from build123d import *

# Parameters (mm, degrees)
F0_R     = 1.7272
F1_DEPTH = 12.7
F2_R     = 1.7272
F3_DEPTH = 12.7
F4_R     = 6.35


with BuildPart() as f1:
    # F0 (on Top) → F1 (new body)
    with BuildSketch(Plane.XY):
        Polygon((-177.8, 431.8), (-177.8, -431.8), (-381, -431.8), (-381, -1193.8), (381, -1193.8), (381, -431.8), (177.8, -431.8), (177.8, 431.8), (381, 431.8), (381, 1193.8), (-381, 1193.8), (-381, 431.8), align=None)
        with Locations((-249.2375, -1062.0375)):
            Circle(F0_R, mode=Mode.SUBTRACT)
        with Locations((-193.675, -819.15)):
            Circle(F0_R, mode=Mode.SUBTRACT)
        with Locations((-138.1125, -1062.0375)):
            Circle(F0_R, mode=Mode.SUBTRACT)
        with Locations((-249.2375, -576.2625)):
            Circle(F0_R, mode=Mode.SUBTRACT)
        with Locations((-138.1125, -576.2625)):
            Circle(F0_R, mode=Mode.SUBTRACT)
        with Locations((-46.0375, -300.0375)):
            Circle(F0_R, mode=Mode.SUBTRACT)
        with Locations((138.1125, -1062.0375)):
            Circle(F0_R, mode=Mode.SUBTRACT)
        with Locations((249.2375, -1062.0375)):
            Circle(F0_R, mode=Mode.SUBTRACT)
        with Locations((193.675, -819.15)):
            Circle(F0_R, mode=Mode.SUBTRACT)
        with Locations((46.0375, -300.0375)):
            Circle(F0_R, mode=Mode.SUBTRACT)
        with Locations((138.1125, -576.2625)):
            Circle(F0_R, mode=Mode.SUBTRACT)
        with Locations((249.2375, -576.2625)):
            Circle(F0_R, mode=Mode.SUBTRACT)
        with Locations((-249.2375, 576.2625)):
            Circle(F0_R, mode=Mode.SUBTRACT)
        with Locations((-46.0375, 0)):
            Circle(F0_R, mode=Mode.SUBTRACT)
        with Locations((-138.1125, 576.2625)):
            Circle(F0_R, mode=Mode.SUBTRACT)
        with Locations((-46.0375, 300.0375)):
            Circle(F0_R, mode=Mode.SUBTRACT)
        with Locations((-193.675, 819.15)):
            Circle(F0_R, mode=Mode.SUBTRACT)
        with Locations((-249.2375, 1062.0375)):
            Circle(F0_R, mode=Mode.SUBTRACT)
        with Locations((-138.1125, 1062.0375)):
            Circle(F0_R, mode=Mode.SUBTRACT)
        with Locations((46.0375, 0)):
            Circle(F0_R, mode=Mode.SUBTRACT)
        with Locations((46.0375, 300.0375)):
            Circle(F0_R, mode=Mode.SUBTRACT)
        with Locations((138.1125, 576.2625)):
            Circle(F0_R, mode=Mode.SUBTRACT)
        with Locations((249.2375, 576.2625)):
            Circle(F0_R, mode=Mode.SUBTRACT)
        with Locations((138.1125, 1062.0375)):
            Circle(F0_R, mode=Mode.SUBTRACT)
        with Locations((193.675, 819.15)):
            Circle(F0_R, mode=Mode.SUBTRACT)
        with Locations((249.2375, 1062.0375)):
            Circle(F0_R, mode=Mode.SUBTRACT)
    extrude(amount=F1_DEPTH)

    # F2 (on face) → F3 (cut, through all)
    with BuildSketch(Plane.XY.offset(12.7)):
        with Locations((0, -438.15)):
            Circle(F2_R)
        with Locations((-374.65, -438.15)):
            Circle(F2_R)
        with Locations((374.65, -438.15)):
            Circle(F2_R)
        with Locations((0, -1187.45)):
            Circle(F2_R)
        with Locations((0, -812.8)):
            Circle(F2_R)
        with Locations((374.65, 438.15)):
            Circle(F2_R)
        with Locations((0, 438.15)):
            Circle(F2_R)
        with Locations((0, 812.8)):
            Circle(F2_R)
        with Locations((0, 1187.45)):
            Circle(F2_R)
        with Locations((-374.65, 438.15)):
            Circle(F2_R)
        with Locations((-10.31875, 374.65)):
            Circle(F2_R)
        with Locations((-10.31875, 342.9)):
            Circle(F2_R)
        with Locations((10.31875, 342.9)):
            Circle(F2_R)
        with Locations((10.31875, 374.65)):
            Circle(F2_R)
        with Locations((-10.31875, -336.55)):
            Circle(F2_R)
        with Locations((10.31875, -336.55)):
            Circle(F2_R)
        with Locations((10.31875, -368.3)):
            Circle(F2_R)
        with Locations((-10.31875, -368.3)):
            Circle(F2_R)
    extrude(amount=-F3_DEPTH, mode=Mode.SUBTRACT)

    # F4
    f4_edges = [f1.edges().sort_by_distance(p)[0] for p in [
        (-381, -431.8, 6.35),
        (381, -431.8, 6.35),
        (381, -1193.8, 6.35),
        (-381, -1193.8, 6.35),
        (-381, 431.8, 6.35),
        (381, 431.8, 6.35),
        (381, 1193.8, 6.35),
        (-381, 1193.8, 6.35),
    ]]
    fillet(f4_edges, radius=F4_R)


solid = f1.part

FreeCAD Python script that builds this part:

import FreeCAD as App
import Part
import Sketcher
from FreeCAD import Vector
Q = App.Units.Quantity


def edges_at(feature, points):
    """Names of the edges that pass closest to the given points."""
    edges = feature.Shape.Edges
    near = lambda p: min(range(len(edges)), key=lambda i: edges[i].distToShape(Part.Vertex(*p))[0])
    return sorted({f"Edge{near(p) + 1}" for p in points})


def add_polygon(sketch, points):
    """Adds a closed chain of lines whose ends are joined by coincident constraints."""
    first, n = sketch.GeometryCount, len(points)
    for a, b in zip(points, points[1:] + points[:1]):
        sketch.addGeometry(Part.LineSegment(App.Vector(*a, 0), App.Vector(*b, 0)), False)
    for i in range(n):
        sketch.addConstraint(Sketcher.Constraint("Coincident", first + i, 2, first + (i + 1) % n, 1))

doc = App.newDocument("Part")
body = doc.addObject("PartDesign::Body", "Body")

# Sketch on XY plane
sketch1 = body.newObject("Sketcher::SketchObject", "Sketch")
sketch1.AttachmentSupport = (doc.getObject("XY_Plane"), [""])
sketch1.MapMode = "FlatFace"
add_polygon(sketch1, [(-177.8, 431.8), (-177.8, -431.8), (-381, -431.8), (-381, -1193.8), (381, -1193.8), (381, -431.8), (177.8, -431.8), (177.8, 431.8), (381, 431.8), (381, 1193.8), (-381, 1193.8), (-381, 431.8)])  # lines 0-11
sketch1.addGeometry(Part.Circle(Vector(-249.2375, -1062.0375, 0), Vector(0, 0, 1), 1.7272), False)  # 12
sketch1.addGeometry(Part.Circle(Vector(-193.675, -819.15, 0), Vector(0, 0, 1), 1.7272), False)  # 13
sketch1.addGeometry(Part.Circle(Vector(-138.1125, -1062.0375, 0), Vector(0, 0, 1), 1.7272), False)  # 14
sketch1.addGeometry(Part.Circle(Vector(-249.2375, -576.2625, 0), Vector(0, 0, 1), 1.7272), False)  # 15
sketch1.addGeometry(Part.Circle(Vector(-138.1125, -576.2625, 0), Vector(0, 0, 1), 1.7272), False)  # 16
sketch1.addGeometry(Part.Circle(Vector(-46.0375, -300.0375, 0), Vector(0, 0, 1), 1.7272), False)  # 17
sketch1.addGeometry(Part.Circle(Vector(138.1125, -1062.0375, 0), Vector(0, 0, 1), 1.7272), False)  # 18
sketch1.addGeometry(Part.Circle(Vector(249.2375, -1062.0375, 0), Vector(0, 0, 1), 1.7272), False)  # 19
sketch1.addGeometry(Part.Circle(Vector(193.675, -819.15, 0), Vector(0, 0, 1), 1.7272), False)  # 20
sketch1.addGeometry(Part.Circle(Vector(138.1125, -576.2625, 0), Vector(0, 0, 1), 1.7272), False)  # 21
sketch1.addGeometry(Part.Circle(Vector(249.2375, -576.2625, 0), Vector(0, 0, 1), 1.7272), False)  # 22
sketch1.addGeometry(Part.Circle(Vector(46.0375, -300.0375, 0), Vector(0, 0, 1), 1.7272), False)  # 23
sketch1.addGeometry(Part.Circle(Vector(-46.0375, 0, 0), Vector(0, 0, 1), 1.7272), False)  # 24
sketch1.addGeometry(Part.Circle(Vector(-46.0375, 300.0375, 0), Vector(0, 0, 1), 1.7272), False)  # 25
sketch1.addGeometry(Part.Circle(Vector(-249.2375, 576.2625, 0), Vector(0, 0, 1), 1.7272), False)  # 26
sketch1.addGeometry(Part.Circle(Vector(-138.1125, 576.2625, 0), Vector(0, 0, 1), 1.7272), False)  # 27
sketch1.addGeometry(Part.Circle(Vector(-193.675, 819.15, 0), Vector(0, 0, 1), 1.7272), False)  # 28
sketch1.addGeometry(Part.Circle(Vector(-249.2375, 1062.0375, 0), Vector(0, 0, 1), 1.7272), False)  # 29
sketch1.addGeometry(Part.Circle(Vector(-138.1125, 1062.0375, 0), Vector(0, 0, 1), 1.7272), False)  # 30
sketch1.addGeometry(Part.Circle(Vector(46.0375, 0, 0), Vector(0, 0, 1), 1.7272), False)  # 31
sketch1.addGeometry(Part.Circle(Vector(46.0375, 300.0375, 0), Vector(0, 0, 1), 1.7272), False)  # 32
sketch1.addGeometry(Part.Circle(Vector(138.1125, 576.2625, 0), Vector(0, 0, 1), 1.7272), False)  # 33
sketch1.addGeometry(Part.Circle(Vector(249.2375, 576.2625, 0), Vector(0, 0, 1), 1.7272), False)  # 34
sketch1.addGeometry(Part.Circle(Vector(138.1125, 1062.0375, 0), Vector(0, 0, 1), 1.7272), False)  # 35
sketch1.addGeometry(Part.Circle(Vector(193.675, 819.15, 0), Vector(0, 0, 1), 1.7272), False)  # 36
sketch1.addGeometry(Part.Circle(Vector(249.2375, 1062.0375, 0), Vector(0, 0, 1), 1.7272), False)  # 37
sketch1.addConstraint(Sketcher.Constraint("Vertical", 0))
sketch1.addConstraint(Sketcher.Constraint("Horizontal", 1))
sketch1.addConstraint(Sketcher.Constraint("Vertical", 2))
sketch1.addConstraint(Sketcher.Constraint("Horizontal", 3))
sketch1.addConstraint(Sketcher.Constraint("Vertical", 4))
sketch1.addConstraint(Sketcher.Constraint("Horizontal", 5))
sketch1.addConstraint(Sketcher.Constraint("Vertical", 6))
sketch1.addConstraint(Sketcher.Constraint("Horizontal", 7))
sketch1.addConstraint(Sketcher.Constraint("Vertical", 8))
sketch1.addConstraint(Sketcher.Constraint("Horizontal", 9))
sketch1.addConstraint(Sketcher.Constraint("Vertical", 10))
sketch1.addConstraint(Sketcher.Constraint("Horizontal", 11))
sketch1.addConstraint(Sketcher.Constraint("Equal", 12, 13))
sketch1.addConstraint(Sketcher.Constraint("Equal", 13, 14))
sketch1.addConstraint(Sketcher.Constraint("Equal", 14, 15))
sketch1.addConstraint(Sketcher.Constraint("Equal", 15, 16))
sketch1.addConstraint(Sketcher.Constraint("Equal", 16, 17))
sketch1.addConstraint(Sketcher.Constraint("Equal", 17, 18))
sketch1.addConstraint(Sketcher.Constraint("Equal", 18, 19))
sketch1.addConstraint(Sketcher.Constraint("Equal", 19, 20))
sketch1.addConstraint(Sketcher.Constraint("Equal", 20, 21))
sketch1.addConstraint(Sketcher.Constraint("Equal", 21, 22))
sketch1.addConstraint(Sketcher.Constraint("Equal", 22, 23))
sketch1.addConstraint(Sketcher.Constraint("Equal", 23, 24))
sketch1.addConstraint(Sketcher.Constraint("Equal", 24, 25))
sketch1.addConstraint(Sketcher.Constraint("Equal", 25, 26))
sketch1.addConstraint(Sketcher.Constraint("Equal", 26, 27))
sketch1.addConstraint(Sketcher.Constraint("Equal", 27, 28))
sketch1.addConstraint(Sketcher.Constraint("Equal", 28, 29))
sketch1.addConstraint(Sketcher.Constraint("Equal", 29, 30))
sketch1.addConstraint(Sketcher.Constraint("Equal", 30, 31))
sketch1.addConstraint(Sketcher.Constraint("Equal", 31, 32))
sketch1.addConstraint(Sketcher.Constraint("Equal", 32, 33))
sketch1.addConstraint(Sketcher.Constraint("Equal", 33, 34))
sketch1.addConstraint(Sketcher.Constraint("Equal", 34, 35))
sketch1.addConstraint(Sketcher.Constraint("Equal", 35, 36))
sketch1.addConstraint(Sketcher.Constraint("Equal", 36, 37))
sketch1.addConstraint(Sketcher.Constraint("Symmetric", 23, 3, 25, 3, -1, 1))
sketch1.addConstraint(Sketcher.Constraint("Symmetric", 22, 3, 26, 3, -1, 1))
sketch1.addConstraint(Sketcher.Constraint("Symmetric", 21, 3, 27, 3, -1, 1))
sketch1.addConstraint(Sketcher.Constraint("Symmetric", 20, 3, 28, 3, -1, 1))
sketch1.addConstraint(Sketcher.Constraint("Symmetric", 19, 3, 29, 3, -1, 1))
sketch1.addConstraint(Sketcher.Constraint("Symmetric", 18, 3, 30, 3, -1, 1))
sketch1.addConstraint(Sketcher.Constraint("Symmetric", 24, 3, 31, 3, -1, 1))
sketch1.addConstraint(Sketcher.Constraint("Symmetric", 17, 3, 32, 3, -1, 1))
sketch1.addConstraint(Sketcher.Constraint("Symmetric", 16, 3, 33, 3, -1, 1))
sketch1.addConstraint(Sketcher.Constraint("Symmetric", 15, 3, 34, 3, -1, 1))
sketch1.addConstraint(Sketcher.Constraint("Symmetric", 14, 3, 35, 3, -1, 1))
sketch1.addConstraint(Sketcher.Constraint("Symmetric", 13, 3, 36, 3, -1, 1))
sketch1.addConstraint(Sketcher.Constraint("Symmetric", 12, 3, 37, 3, -1, 1))
sketch1.addConstraint(Sketcher.Constraint("Symmetric", 0, 2, 6, 2, -1, 1))
sketch1.addConstraint(Sketcher.Constraint("Symmetric", 2, 2, 8, 2, -1, 1))
sketch1.addConstraint(Sketcher.Constraint("Symmetric", 4, 2, 10, 2, -1, 1))
sketch1.addConstraint(Sketcher.Constraint("Symmetric", 14, 3, 18, 3, -2))
sketch1.addConstraint(Sketcher.Constraint("Symmetric", 12, 3, 19, 3, -2))
sketch1.addConstraint(Sketcher.Constraint("Symmetric", 13, 3, 20, 3, -2))
sketch1.addConstraint(Sketcher.Constraint("Symmetric", 16, 3, 21, 3, -2))
sketch1.addConstraint(Sketcher.Constraint("Symmetric", 15, 3, 22, 3, -2))
sketch1.addConstraint(Sketcher.Constraint("Symmetric", 17, 3, 23, 3, -2))
sketch1.addConstraint(Sketcher.Constraint("Symmetric", 1, 2, 4, 2, -2))
sketch1.addConstraint(Sketcher.Constraint("PointOnObject", 24, 3, -1))
sketch1.addConstraint(Sketcher.Constraint("Horizontal", 12, 3, 14, 3))
sketch1.addConstraint(Sketcher.Constraint("Horizontal", 15, 3, 16, 3))
sketch1.addConstraint(Sketcher.Constraint("Vertical", 12, 3, 15, 3))
sketch1.addConstraint(Sketcher.Constraint("Vertical", 14, 3, 16, 3))
sketch1.addConstraint(Sketcher.Constraint("Vertical", 17, 3, 24, 3))
sketch1.addConstraint(Sketcher.Constraint("Equal", 9, 2))
sketch1.addConstraint(Sketcher.Constraint("DistanceX", 1, 2, 1, 1, Q("8 in")))
sketch1.addConstraint(Sketcher.Constraint("DistanceX", 3, 1, 3, 2, Q("30 in")))
sketch1.addConstraint(Sketcher.Constraint("DistanceY", 0, 2, 0, 1, Q("34 in")))
sketch1.addConstraint(Sketcher.Constraint("Diameter", 12, Q("0.136 in")))
sketch1.addConstraint(Sketcher.Constraint("DistanceX", 15, 3, 17, 3, Q("8 in")))
sketch1.addConstraint(Sketcher.Constraint("DistanceY", 14, 3, 17, 3, Q("30 in")))
sketch1.addConstraint(Sketcher.Constraint("DistanceY", 16, 3, 25, 3, Q("34.5 in")))
sketch1.addConstraint(Sketcher.Constraint("DistanceY", 13, 3, -1, 1, Q("32.25 in")))
sketch1.addConstraint(Sketcher.Constraint("DistanceX", 12, 3, 18, 3, Q("15.25 in")))
sketch1.addConstraint(Sketcher.Constraint("DistanceX", 13, 3, 20, 3, Q("15.25 in")))
sketch1.addConstraint(Sketcher.Constraint("DistanceX", 12, 3, -1, 1, Q("9.8125 in")))
sketch1.addConstraint(Sketcher.Constraint("DistanceY", 12, 3, -1, 1, Q("41.8125 in")))
pad1 = body.newObject("PartDesign::Pad", "Pad")
pad1.Profile = sketch1
pad1.Length = Q("0.5 in")

# Sketch on XY plane
sketch2 = body.newObject("Sketcher::SketchObject", "Sketch001")
sketch2.AttachmentSupport = (doc.getObject("XY_Plane"), [""])
sketch2.MapMode = "FlatFace"
sketch2.AttachmentOffset = App.Placement(Vector(0, 0, 0.5 * 25.4), App.Rotation())
sketch2.addGeometry(Part.Circle(Vector(0, -438.15, 0), Vector(0, 0, 1), 1.7272), False)
sketch2.addGeometry(Part.Circle(Vector(-374.65, -438.15, 0), Vector(0, 0, 1), 1.7272), False)
sketch2.addGeometry(Part.Circle(Vector(374.65, -438.15, 0), Vector(0, 0, 1), 1.7272), False)
sketch2.addGeometry(Part.Circle(Vector(0, -1187.45, 0), Vector(0, 0, 1), 1.7272), False)
sketch2.addGeometry(Part.Circle(Vector(0, -812.8, 0), Vector(0, 0, 1), 1.7272), False)
sketch2.addGeometry(Part.Circle(Vector(374.65, 438.15, 0), Vector(0, 0, 1), 1.7272), False)
sketch2.addGeometry(Part.Circle(Vector(0, 438.15, 0), Vector(0, 0, 1), 1.7272), False)
sketch2.addGeometry(Part.Circle(Vector(0, 812.8, 0), Vector(0, 0, 1), 1.7272), False)
sketch2.addGeometry(Part.Circle(Vector(0, 1187.45, 0), Vector(0, 0, 1), 1.7272), False)
sketch2.addGeometry(Part.Circle(Vector(-374.65, 438.15, 0), Vector(0, 0, 1), 1.7272), False)
sketch2.addGeometry(Part.Circle(Vector(-10.31875, 374.65, 0), Vector(0, 0, 1), 1.7272), False)
sketch2.addGeometry(Part.Circle(Vector(-10.31875, 342.9, 0), Vector(0, 0, 1), 1.7272), False)
sketch2.addGeometry(Part.Circle(Vector(10.31875, 342.9, 0), Vector(0, 0, 1), 1.7272), False)
sketch2.addGeometry(Part.Circle(Vector(10.31875, 374.65, 0), Vector(0, 0, 1), 1.7272), False)
sketch2.addGeometry(Part.Circle(Vector(-10.31875, -336.55, 0), Vector(0, 0, 1), 1.7272), False)
sketch2.addGeometry(Part.Circle(Vector(10.31875, -336.55, 0), Vector(0, 0, 1), 1.7272), False)
sketch2.addGeometry(Part.Circle(Vector(10.31875, -368.3, 0), Vector(0, 0, 1), 1.7272), False)
sketch2.addGeometry(Part.Circle(Vector(-10.31875, -368.3, 0), Vector(0, 0, 1), 1.7272), False)
sketch2.addConstraint(Sketcher.Constraint("Equal", 0, 1))
sketch2.addConstraint(Sketcher.Constraint("Equal", 1, 2))
sketch2.addConstraint(Sketcher.Constraint("Equal", 2, 3))
sketch2.addConstraint(Sketcher.Constraint("Equal", 3, 4))
sketch2.addConstraint(Sketcher.Constraint("Equal", 4, 5))
sketch2.addConstraint(Sketcher.Constraint("Equal", 5, 6))
sketch2.addConstraint(Sketcher.Constraint("Equal", 6, 7))
sketch2.addConstraint(Sketcher.Constraint("Equal", 7, 8))
sketch2.addConstraint(Sketcher.Constraint("Equal", 8, 9))
sketch2.addConstraint(Sketcher.Constraint("Equal", 9, 10))
sketch2.addConstraint(Sketcher.Constraint("Equal", 10, 11))
sketch2.addConstraint(Sketcher.Constraint("Equal", 11, 12))
sketch2.addConstraint(Sketcher.Constraint("Equal", 12, 13))
sketch2.addConstraint(Sketcher.Constraint("Equal", 13, 14))
sketch2.addConstraint(Sketcher.Constraint("Equal", 14, 15))
sketch2.addConstraint(Sketcher.Constraint("Equal", 15, 16))
sketch2.addConstraint(Sketcher.Constraint("Equal", 16, 17))
sketch2.addConstraint(Sketcher.Constraint("Symmetric", 1, 3, 5, 3, -1, 1))
sketch2.addConstraint(Sketcher.Constraint("Symmetric", 0, 3, 6, 3, -1, 1))
sketch2.addConstraint(Sketcher.Constraint("Symmetric", 4, 3, 7, 3, -1, 1))
sketch2.addConstraint(Sketcher.Constraint("Symmetric", 3, 3, 8, 3, -1, 1))
sketch2.addConstraint(Sketcher.Constraint("Symmetric", 2, 3, 9, 3, -1, 1))
sketch2.addConstraint(Sketcher.Constraint("Symmetric", 1, 3, 2, 3, -2))
sketch2.addConstraint(Sketcher.Constraint("Symmetric", 11, 3, 12, 3, -2))
sketch2.addConstraint(Sketcher.Constraint("Symmetric", 10, 3, 13, 3, -2))
sketch2.addConstraint(Sketcher.Constraint("Symmetric", 14, 3, 15, 3, -2))
sketch2.addConstraint(Sketcher.Constraint("Symmetric", 16, 3, 17, 3, -2))
sketch2.addConstraint(Sketcher.Constraint("PointOnObject", 0, 3, -2))
sketch2.addConstraint(Sketcher.Constraint("PointOnObject", 3, 3, -2))
sketch2.addConstraint(Sketcher.Constraint("PointOnObject", 4, 3, -2))
sketch2.addConstraint(Sketcher.Constraint("Horizontal", 0, 3, 1, 3))
sketch2.addConstraint(Sketcher.Constraint("Vertical", 10, 3, 11, 3))
sketch2.addConstraint(Sketcher.Constraint("Vertical", 11, 3, 14, 3))
sketch2.addConstraint(Sketcher.Constraint("Vertical", 15, 3, 16, 3))
sketch2.addConstraint(Sketcher.Constraint("Diameter", 0, Q("0.136 in")))
sketch2.addConstraint(Sketcher.Constraint("DistanceY", 4, 3, -1, 1, Q("32 in")))
sketch2.addConstraint(Sketcher.Constraint("DistanceY", 3, 3, 5, 3, Q("64 in")))
sketch2.addConstraint(Sketcher.Constraint("DistanceY", 0, 3, 10, 3, Q("32 in")))
sketch2.addConstraint(Sketcher.Constraint("DistanceY", 0, 3, 14, 3, Q("4 in")))
sketch2.addConstraint(Sketcher.Constraint("DistanceY", -1, 1, 11, 3, Q("13.5 in")))
sketch2.addConstraint(Sketcher.Constraint("DistanceY", 16, 3, -1, 1, Q("14.5 in")))
sketch2.addConstraint(Sketcher.Constraint("DistanceX", 1, 3, 2, 3, Q("29.5 in")))
sketch2.addConstraint(Sketcher.Constraint("DistanceY", 3, 3, 0, 3, Q("29.5 in")))
sketch2.addConstraint(Sketcher.Constraint("DistanceX", 10, 3, -1, 1, Q("0.40625 in")))
pocket1 = body.newObject("PartDesign::Pocket", "Pocket")
pocket1.Profile = sketch2
pocket1.Type = "ThroughAll"
doc.recompute()

fillet = body.newObject("PartDesign::Fillet", "Fillet")
fillet.Base = (pocket1, edges_at(pocket1, [
    (-381, -431.8, 6.35),
    (381, -431.8, 6.35),
    (381, -1193.8, 6.35),
    (-381, -1193.8, 6.35),
    (-381, 431.8, 6.35),
    (381, 431.8, 6.35),
    (381, 1193.8, 6.35),
    (-381, 1193.8, 6.35),
]))
fillet.Radius = Q("0.25 in")

doc.recompute()
